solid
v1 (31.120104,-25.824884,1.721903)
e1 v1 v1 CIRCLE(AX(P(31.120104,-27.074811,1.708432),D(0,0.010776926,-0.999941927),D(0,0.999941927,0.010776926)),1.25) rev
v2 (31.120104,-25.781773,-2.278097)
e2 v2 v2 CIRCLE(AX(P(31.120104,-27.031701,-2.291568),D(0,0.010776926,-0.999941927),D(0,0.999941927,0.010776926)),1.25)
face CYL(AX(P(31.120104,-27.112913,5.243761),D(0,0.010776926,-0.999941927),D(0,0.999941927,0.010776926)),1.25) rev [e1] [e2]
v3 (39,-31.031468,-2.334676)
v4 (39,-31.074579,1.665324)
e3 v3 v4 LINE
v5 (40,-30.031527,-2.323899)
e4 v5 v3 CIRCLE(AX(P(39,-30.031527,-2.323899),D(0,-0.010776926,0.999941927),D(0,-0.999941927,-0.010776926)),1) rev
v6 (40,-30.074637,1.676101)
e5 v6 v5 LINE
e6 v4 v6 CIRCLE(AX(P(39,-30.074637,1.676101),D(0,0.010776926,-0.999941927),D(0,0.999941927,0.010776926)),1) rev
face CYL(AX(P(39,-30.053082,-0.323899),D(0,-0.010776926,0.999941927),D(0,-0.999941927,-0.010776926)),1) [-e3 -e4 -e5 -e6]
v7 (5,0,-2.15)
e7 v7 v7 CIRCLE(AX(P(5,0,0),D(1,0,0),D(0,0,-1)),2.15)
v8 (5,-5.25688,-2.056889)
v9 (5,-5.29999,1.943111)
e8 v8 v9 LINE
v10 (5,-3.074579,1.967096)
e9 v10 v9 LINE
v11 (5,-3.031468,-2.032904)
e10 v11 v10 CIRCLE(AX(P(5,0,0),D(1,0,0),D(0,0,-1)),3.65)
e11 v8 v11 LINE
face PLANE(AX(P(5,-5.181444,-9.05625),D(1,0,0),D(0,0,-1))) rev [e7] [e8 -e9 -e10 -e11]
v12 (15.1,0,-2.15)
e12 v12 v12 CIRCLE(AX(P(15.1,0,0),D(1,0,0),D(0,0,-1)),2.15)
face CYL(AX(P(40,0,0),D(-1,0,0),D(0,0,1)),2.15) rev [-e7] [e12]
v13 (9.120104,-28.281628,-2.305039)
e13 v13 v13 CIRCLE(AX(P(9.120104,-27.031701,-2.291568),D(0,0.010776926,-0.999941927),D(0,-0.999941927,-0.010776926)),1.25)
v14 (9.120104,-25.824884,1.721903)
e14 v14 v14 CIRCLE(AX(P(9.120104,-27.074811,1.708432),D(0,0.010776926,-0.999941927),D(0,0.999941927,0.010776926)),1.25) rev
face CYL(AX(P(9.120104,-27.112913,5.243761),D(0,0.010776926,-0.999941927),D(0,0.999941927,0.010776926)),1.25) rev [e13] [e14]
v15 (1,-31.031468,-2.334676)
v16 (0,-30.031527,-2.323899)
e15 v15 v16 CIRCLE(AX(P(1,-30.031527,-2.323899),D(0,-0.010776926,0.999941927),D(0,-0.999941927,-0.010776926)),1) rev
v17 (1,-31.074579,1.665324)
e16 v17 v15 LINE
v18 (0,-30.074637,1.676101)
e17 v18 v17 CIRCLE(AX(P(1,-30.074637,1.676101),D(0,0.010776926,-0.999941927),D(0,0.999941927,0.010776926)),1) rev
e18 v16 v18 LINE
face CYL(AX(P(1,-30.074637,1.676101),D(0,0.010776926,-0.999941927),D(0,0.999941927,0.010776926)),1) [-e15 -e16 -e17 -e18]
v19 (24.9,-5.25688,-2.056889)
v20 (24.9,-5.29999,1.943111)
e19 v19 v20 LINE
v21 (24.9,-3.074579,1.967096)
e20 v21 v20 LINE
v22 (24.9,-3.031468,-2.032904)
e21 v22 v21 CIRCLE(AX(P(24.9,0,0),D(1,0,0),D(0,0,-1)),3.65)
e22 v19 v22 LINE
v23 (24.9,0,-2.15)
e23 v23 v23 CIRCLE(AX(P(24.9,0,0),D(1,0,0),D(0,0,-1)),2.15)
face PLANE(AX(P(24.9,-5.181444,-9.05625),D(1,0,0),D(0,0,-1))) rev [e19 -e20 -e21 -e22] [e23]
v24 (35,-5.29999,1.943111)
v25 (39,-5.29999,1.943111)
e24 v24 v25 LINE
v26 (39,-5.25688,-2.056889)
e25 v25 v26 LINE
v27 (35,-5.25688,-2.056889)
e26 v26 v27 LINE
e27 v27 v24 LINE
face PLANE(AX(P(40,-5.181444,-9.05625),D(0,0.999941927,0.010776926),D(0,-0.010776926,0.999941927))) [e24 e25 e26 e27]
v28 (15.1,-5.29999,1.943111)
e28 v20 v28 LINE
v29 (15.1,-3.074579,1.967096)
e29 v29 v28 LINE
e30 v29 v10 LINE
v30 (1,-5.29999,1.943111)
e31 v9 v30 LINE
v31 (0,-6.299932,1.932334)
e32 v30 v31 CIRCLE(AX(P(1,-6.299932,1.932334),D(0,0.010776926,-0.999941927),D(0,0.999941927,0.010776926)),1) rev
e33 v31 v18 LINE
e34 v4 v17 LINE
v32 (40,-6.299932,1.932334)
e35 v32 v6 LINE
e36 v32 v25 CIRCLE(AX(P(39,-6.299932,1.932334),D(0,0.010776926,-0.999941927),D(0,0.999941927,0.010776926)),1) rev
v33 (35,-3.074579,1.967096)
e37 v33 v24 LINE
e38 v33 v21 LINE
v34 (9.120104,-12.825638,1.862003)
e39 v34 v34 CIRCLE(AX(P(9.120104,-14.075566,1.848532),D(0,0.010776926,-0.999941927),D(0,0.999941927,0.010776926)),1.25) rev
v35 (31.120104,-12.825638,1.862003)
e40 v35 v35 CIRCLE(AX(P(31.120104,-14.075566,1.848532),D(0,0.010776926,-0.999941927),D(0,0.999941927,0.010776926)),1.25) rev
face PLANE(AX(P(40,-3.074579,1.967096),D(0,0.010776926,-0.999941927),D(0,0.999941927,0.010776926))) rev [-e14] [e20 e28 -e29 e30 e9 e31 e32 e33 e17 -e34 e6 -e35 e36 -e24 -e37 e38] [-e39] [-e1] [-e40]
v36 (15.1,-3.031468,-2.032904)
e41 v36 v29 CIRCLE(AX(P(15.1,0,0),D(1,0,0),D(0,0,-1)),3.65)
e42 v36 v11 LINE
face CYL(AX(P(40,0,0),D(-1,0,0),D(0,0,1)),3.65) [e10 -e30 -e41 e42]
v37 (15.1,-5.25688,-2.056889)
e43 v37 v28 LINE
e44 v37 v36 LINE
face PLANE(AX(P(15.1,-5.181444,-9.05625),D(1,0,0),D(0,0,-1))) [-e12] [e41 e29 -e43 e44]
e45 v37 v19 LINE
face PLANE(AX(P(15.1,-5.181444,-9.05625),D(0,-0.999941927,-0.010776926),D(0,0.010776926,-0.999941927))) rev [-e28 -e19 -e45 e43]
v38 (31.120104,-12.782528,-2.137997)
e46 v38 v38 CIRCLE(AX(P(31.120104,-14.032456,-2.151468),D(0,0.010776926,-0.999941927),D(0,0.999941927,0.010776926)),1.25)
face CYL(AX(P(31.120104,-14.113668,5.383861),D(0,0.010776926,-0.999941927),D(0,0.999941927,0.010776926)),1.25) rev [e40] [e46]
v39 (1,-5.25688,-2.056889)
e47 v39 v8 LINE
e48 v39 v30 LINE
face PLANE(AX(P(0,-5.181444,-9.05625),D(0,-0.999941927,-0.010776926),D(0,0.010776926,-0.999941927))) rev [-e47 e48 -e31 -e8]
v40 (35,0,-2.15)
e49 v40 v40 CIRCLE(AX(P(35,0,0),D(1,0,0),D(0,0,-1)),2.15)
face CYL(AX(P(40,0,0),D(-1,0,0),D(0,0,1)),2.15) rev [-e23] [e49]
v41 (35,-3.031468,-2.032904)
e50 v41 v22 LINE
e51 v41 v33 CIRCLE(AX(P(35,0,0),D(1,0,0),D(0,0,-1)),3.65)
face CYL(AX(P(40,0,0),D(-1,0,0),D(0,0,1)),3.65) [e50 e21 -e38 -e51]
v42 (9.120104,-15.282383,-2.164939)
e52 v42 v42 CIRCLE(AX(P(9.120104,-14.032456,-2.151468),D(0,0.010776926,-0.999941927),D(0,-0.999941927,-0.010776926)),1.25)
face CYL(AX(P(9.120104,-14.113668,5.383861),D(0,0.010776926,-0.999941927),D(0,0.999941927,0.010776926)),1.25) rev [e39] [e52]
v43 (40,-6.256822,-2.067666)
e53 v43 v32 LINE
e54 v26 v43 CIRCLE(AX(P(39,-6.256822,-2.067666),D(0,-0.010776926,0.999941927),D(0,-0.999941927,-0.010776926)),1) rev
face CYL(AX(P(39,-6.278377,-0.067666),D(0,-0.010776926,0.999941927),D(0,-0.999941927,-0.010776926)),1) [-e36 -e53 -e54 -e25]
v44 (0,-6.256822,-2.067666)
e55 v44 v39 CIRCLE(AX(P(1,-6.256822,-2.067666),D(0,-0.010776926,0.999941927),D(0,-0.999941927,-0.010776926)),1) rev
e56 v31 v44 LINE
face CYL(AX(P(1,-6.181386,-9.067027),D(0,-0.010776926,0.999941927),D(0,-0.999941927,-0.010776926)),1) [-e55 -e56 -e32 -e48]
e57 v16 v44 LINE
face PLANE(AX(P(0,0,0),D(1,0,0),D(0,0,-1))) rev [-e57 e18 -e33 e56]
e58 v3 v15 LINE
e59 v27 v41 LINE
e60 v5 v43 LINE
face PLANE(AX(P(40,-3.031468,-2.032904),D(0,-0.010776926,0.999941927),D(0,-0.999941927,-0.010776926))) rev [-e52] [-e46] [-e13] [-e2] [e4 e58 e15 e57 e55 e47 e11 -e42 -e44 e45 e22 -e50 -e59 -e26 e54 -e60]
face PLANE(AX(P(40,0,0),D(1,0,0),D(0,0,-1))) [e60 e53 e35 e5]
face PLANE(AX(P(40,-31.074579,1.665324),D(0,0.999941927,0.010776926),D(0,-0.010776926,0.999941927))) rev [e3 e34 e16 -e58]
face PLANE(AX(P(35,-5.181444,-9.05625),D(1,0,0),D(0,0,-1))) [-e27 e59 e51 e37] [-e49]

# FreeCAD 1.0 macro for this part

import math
import FreeCAD as App
import Part
import Sketcher
from FreeCAD import Vector
Q = App.Units.Quantity


def edges_at(feature, points):
    """Names of the edges that pass closest to the given points."""
    edges = feature.Shape.Edges
    near = lambda p: min(range(len(edges)), key=lambda i: edges[i].distToShape(Part.Vertex(*p))[0])
    return sorted({f"Edge{near(p) + 1}" for p in points})

doc = App.newDocument("Part")
params = doc.addObject("Spreadsheet::Sheet", "Params")
for row, (alias, value) in enumerate([
    ("sketch1_diameter", "4.3 mm"),
    ("sketch1_radius", "3.65 mm"),
    ("pad1_length", "40 mm"),
    ("sketch2_diameter", "2.5 mm"),
    ("pocket1_length", "4.000232 mm"),
    ("sketch3_width", "5 mm"),
    ("sketch3_height", "10 mm"),
    ("sketch3_width2", "9.8 mm"),
    ("pocket2_length", "22 mm"),
    ("fillet_radius", "1 mm"),
], start=1):
    params.set(f"A{row}", alias)
    params.set(f"B{row}", "=" + value)
    params.setAlias(f"B{row}", alias)

body = doc.addObject("PartDesign::Body", "Body")

# Sketch on YZ plane
sketch1 = body.newObject("Sketcher::SketchObject", "Sketch")
sketch1.AttachmentSupport = (doc.getObject("YZ_Plane"), [""])
sketch1.MapMode = "FlatFace"
sketch1.addGeometry([
    Part.LineSegment(Vector(-3.1, 2, 0), Vector(-31.1, 1.7, 0)),  # 0
    Part.LineSegment(Vector(-31.1, 1.7, 0), Vector(-31, -2.3, 0)),  # 1
    Part.LineSegment(Vector(-31, -2.3, 0), Vector(-3, -2, 0)),  # 2
    Part.ArcOfCircle(Part.Circle(Vector(0, 0, 0), Vector(0, 0, 1), 3.6), math.radians(-146), math.radians(147)),  # 3
    Part.Circle(Vector(0, 0, 0), Vector(0, 0, 1), 2.1),  # 4
], False)
sketch1.addConstraint([
    Sketcher.Constraint("Coincident", 0, 2, 1, 1),
    Sketcher.Constraint("Coincident", 1, 2, 2, 1),
    Sketcher.Constraint("Coincident", 2, 2, 3, 1),
    Sketcher.Constraint("Coincident", 3, 2, 0, 1),
    Sketcher.Constraint("Coincident", 3, 3, -1, 1),
    Sketcher.Constraint("Coincident", 4, 3, -1, 1),
    Sketcher.Constraint("Perpendicular", 0, 1),
    Sketcher.Constraint("Perpendicular", 1, 2),
    Sketcher.Constraint("Equal", 0, 2),
    Sketcher.Constraint("Diameter", 4, Q("4.3 mm")),
    Sketcher.Constraint("Radius", 3, Q("3.65 mm")),
    Sketcher.Constraint("DistanceY", 1, 2, 0, 2, Q("4 mm")),
    Sketcher.Constraint("DistanceX", 1, 2, 2, 2, Q("28 mm")),
    Sketcher.Constraint("DistanceX", 0, 2, -1, 1, Q("31.074579 mm")),
])
sketch1.setExpression("Constraints[9]", "Params.sketch1_diameter")
sketch1.setExpression("Constraints[10]", "Params.sketch1_radius")
pad1 = body.newObject("PartDesign::Pad", "Pad")
pad1.Profile = sketch1
pad1.setExpression("Length", "Params.pad1_length")

# Sketch on an angled plane
sketch2 = body.newObject("Sketcher::SketchObject", "Sketch001")
sketch2.Placement = App.Placement(Vector(0, 0.021555, -2), App.Rotation(Vector(-1, 0, 0), Vector(0, 0.999941927, 0.010776926), Vector(0, 0.010776926, -0.999941927), "ZXY"))
sketch2.addGeometry([
    Part.Circle(Vector(-31.1, -27.1, 0), Vector(0, 0, 1), 1.2),
    Part.Circle(Vector(-31.1, -14.1, 0), Vector(0, 0, 1), 1.2),
    Part.Circle(Vector(-9.1, -27.1, 0), Vector(0, 0, 1), 1.2),
    Part.Circle(Vector(-9.1, -14.1, 0), Vector(0, 0, 1), 1.2),
], False)
sketch2.addConstraint([
    Sketcher.Constraint("Equal", 0, 1),
    Sketcher.Constraint("Equal", 1, 2),
    Sketcher.Constraint("Equal", 2, 3),
    Sketcher.Constraint("Horizontal", 0, 3, 2, 3),
    Sketcher.Constraint("Horizontal", 1, 3, 3, 3),
    Sketcher.Constraint("Vertical", 0, 3, 1, 3),
    Sketcher.Constraint("Vertical", 2, 3, 3, 3),
    Sketcher.Constraint("Diameter", 0, Q("2.5 mm")),
    Sketcher.Constraint("DistanceY", 0, 3, 1, 3, Q("13 mm")),
    Sketcher.Constraint("DistanceX", 0, 3, 2, 3, Q("22 mm")),
    Sketcher.Constraint("DistanceX", 0, 3, -1, 1, Q("31.120104 mm")),
    Sketcher.Constraint("DistanceY", 0, 3, -1, 1, Q("27.054827 mm")),
])
sketch2.setExpression("Constraints[7]", "Params.sketch2_diameter")
pocket1 = body.newObject("PartDesign::Pocket", "Pocket")
pocket1.Profile = sketch2
pocket1.setExpression("Length", "Params.pocket1_length")

# Sketch on an angled plane
sketch3 = body.newObject("Sketcher::SketchObject", "Sketch002")
sketch3.Placement = App.Placement(Vector(0, -0.021555, 2), App.Rotation(Vector(1, 0, 0), Vector(0, 0.999941927, 0.010776926), Vector(0, -0.010776926, 0.999941927), "ZXY"))
sketch3.addGeometry([
    Part.LineSegment(Vector(0, 5, 0), Vector(0, -5, 0)),  # 0
    Part.LineSegment(Vector(0, -5, 0), Vector(5, -5, 0)),  # 1
    Part.LineSegment(Vector(5, -5, 0), Vector(5, 5, 0)),  # 2
    Part.LineSegment(Vector(5, 5, 0), Vector(0, 5, 0)),  # 3
    Part.LineSegment(Vector(15, 5, 0), Vector(15, -5, 0)),  # 4
    Part.LineSegment(Vector(15, -5, 0), Vector(25, -5, 0)),  # 5
    Part.LineSegment(Vector(25, -5, 0), Vector(25, 5, 0)),  # 6
    Part.LineSegment(Vector(25, 5, 0), Vector(15, 5, 0)),  # 7
    Part.LineSegment(Vector(35, 5, 0), Vector(35, -5, 0)),  # 8
    Part.LineSegment(Vector(35, -5, 0), Vector(40, -5, 0)),  # 9
    Part.LineSegment(Vector(40, -5, 0), Vector(40, 5, 0)),  # 10
    Part.LineSegment(Vector(40, 5, 0), Vector(35, 5, 0)),  # 11
], False)
sketch3.addConstraint([
    Sketcher.Constraint("Coincident", 0, 2, 1, 1),
    Sketcher.Constraint("Coincident", 1, 2, 2, 1),
    Sketcher.Constraint("Coincident", 2, 2, 3, 1),
    Sketcher.Constraint("Coincident", 3, 2, 0, 1),
    Sketcher.Constraint("Coincident", 4, 2, 5, 1),
    Sketcher.Constraint("Coincident", 5, 2, 6, 1),
    Sketcher.Constraint("Coincident", 6, 2, 7, 1),
    Sketcher.Constraint("Coincident", 7, 2, 4, 1),
    Sketcher.Constraint("Coincident", 8, 2, 9, 1),
    Sketcher.Constraint("Coincident", 9, 2, 10, 1),
    Sketcher.Constraint("Coincident", 10, 2, 11, 1),
    Sketcher.Constraint("Coincident", 11, 2, 8, 1),
    Sketcher.Constraint("Vertical", 0),
    Sketcher.Constraint("Horizontal", 1),
    Sketcher.Constraint("Vertical", 2),
    Sketcher.Constraint("Horizontal", 3),
    Sketcher.Constraint("Vertical", 4),
    Sketcher.Constraint("Horizontal", 5),
    Sketcher.Constraint("Vertical", 6),
    Sketcher.Constraint("Horizontal", 7),
    Sketcher.Constraint("Vertical", 8),
    Sketcher.Constraint("Horizontal", 9),
    Sketcher.Constraint("Vertical", 10),
    Sketcher.Constraint("Horizontal", 11),
    Sketcher.Constraint("PointOnObject", 0, 2, -2),
    Sketcher.Constraint("Horizontal", 1, 2, 4, 2),
    Sketcher.Constraint("Horizontal", 3, 2, 6, 2),
    Sketcher.Constraint("Horizontal", 5, 2, 8, 2),
    Sketcher.Constraint("Horizontal", 7, 2, 10, 2),
    Sketcher.Constraint("Equal", 3, 9),
    Sketcher.Constraint("DistanceX", 1, 1, 1, 2, Q("5 mm")),
    Sketcher.Constraint("DistanceY", 0, 2, 0, 1, Q("10 mm")),
    Sketcher.Constraint("DistanceX", 5, 1, 5, 2, Q("9.8 mm")),
    Sketcher.Constraint("DistanceX", -1, 1, 8, 2, Q("35 mm")),
    Sketcher.Constraint("DistanceX", -1, 1, 4, 2, Q("15.1 mm")),
    Sketcher.Constraint("DistanceY", 0, 2, -1, 1, Q("5.278741 mm")),
])
sketch3.setExpression("Constraints[30]", "Params.sketch3_width")
sketch3.setExpression("Constraints[31]", "Params.sketch3_height")
sketch3.setExpression("Constraints[32]", "Params.sketch3_width2")
pocket2 = body.newObject("PartDesign::Pocket", "Pocket001")
pocket2.Profile = sketch3
pocket2.setExpression("Length", "Params.pocket2_length")
pocket2.Midplane = True
doc.recompute()

fillet = body.newObject("PartDesign::Fillet", "Fillet")
fillet.Base = (pocket2, edges_at(pocket2, [
    (40, -31.053, -0.335),
    (0, -5.278, -0.057),
    (0, -31.053, -0.335),
    (40, -5.278, -0.057),
]))
fillet.setExpression("Radius", "Params.fillet_radius")

doc.recompute()
